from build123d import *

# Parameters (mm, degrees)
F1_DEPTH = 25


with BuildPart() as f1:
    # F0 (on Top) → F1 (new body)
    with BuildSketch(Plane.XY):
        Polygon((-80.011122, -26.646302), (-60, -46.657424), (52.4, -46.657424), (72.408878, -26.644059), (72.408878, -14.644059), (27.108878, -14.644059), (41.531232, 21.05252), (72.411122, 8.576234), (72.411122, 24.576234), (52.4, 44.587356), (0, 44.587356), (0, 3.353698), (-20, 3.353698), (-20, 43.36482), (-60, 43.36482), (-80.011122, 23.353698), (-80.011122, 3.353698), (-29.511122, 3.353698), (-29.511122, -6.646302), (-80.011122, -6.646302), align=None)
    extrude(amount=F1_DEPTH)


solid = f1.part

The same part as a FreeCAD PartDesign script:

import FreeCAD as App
import Part
import Sketcher
from FreeCAD import Vector
Q = App.Units.Quantity


def add_polygon(sketch, points):
    """Adds a closed chain of lines whose ends are joined by coincident constraints."""
    first, n = sketch.GeometryCount, len(points)
    for a, b in zip(points, points[1:] + points[:1]):
        sketch.addGeometry(Part.LineSegment(App.Vector(*a, 0), App.Vector(*b, 0)), False)
    for i in range(n):
        sketch.addConstraint(Sketcher.Constraint("Coincident", first + i, 2, first + (i + 1) % n, 1))

doc = App.newDocument("Part")
body = doc.addObject("PartDesign::Body", "Body")

# Sketch on XY plane
sketch1 = body.newObject("Sketcher::SketchObject", "Sketch")
sketch1.AttachmentSupport = (doc.getObject("XY_Plane"), [""])
sketch1.MapMode = "FlatFace"
add_polygon(sketch1, [(-80.011122, -26.646302), (-60, -46.657424), (52.4, -46.657424), (72.408878, -26.644059), (72.408878, -14.644059), (27.108878, -14.644059), (41.531232, 21.05252), (72.411122, 8.576234), (72.411122, 24.576234), (52.4, 44.587356), (0, 44.587356), (0, 3.353698), (-20, 3.353698), (-20, 43.36482), (-60, 43.36482), (-80.011122, 23.353698), (-80.011122, 3.353698), (-29.511122, 3.353698), (-29.511122, -6.646302), (-80.011122, -6.646302)])  # lines 0-19
sketch1.addConstraint([
    Sketcher.Constraint("Horizontal", 1),
    Sketcher.Constraint("Vertical", 3),
    Sketcher.Constraint("Horizontal", 4),
    Sketcher.Constraint("Vertical", 7),
    Sketcher.Constraint("Horizontal", 9),
    Sketcher.Constraint("Vertical", 10),
    Sketcher.Constraint("Horizontal", 11),
    Sketcher.Constraint("Vertical", 12),
    Sketcher.Constraint("Horizontal", 13),
    Sketcher.Constraint("Vertical", 15),
    Sketcher.Constraint("Horizontal", 16),
    Sketcher.Constraint("Vertical", 17),
    Sketcher.Constraint("Horizontal", 18),
    Sketcher.Constraint("Vertical", 19),
    Sketcher.Constraint("PointOnObject", 9, 2, -2),
    Sketcher.Constraint("Perpendicular", 5, 6),
    Sketcher.Constraint("Parallel", 0, 8),
    Sketcher.Constraint("Perpendicular", 8, 14),
    Sketcher.Constraint("Horizontal", 11, 2, 15, 2),
    Sketcher.Constraint("Vertical", 1, 2, 8, 2),
    Sketcher.Constraint("Vertical", 0, 2, 13, 2),
    Sketcher.Constraint("Vertical", 15, 2, 18, 2),
    Sketcher.Constraint("Equal", 11, 15),
    Sketcher.Constraint("Equal", 15, 19),
    Sketcher.Constraint("Equal", 0, 2),
    Sketcher.Constraint("Equal", 2, 8),
    Sketcher.Constraint("Equal", 8, 14),
    Sketcher.Constraint("DistanceX", 11, 2, 11, 1, Q("20 mm")),
    Sketcher.Constraint("DistanceX", 13, 2, 13, 1, Q("40 mm")),
    Sketcher.Constraint("DistanceY", 3, 1, 3, 2, Q("12 mm")),
    Sketcher.Constraint("DistanceY", 7, 1, 7, 2, Q("16 mm")),
    Sketcher.Constraint("DistanceY", 17, 2, 17, 1, Q("10 mm")),
    Sketcher.Constraint("Angle", 5, Q("68 deg")),
    Sketcher.Constraint("DistanceX", 1, 1, 1, 2, Q("112.4 mm")),
    Sketcher.Constraint("DistanceX", 4, 2, 4, 1, Q("45.3 mm")),
    Sketcher.Constraint("DistanceX", 16, 1, 16, 2, Q("50.5 mm")),
    Sketcher.Constraint("Distance", 0, Q("28.3 mm")),
    Sketcher.Constraint("Distance", 5, Q("38.500001 mm")),
    Sketcher.Constraint("DistanceY", -1, 1, 10, 2, Q("3.353698 mm")),
    Sketcher.Constraint("DistanceY", 5, 2, 12, 2, Q("22.3123 mm")),
])
pad1 = body.newObject("PartDesign::Pad", "Pad")
pad1.Profile = sketch1
pad1.Length = 25

doc.recompute()
